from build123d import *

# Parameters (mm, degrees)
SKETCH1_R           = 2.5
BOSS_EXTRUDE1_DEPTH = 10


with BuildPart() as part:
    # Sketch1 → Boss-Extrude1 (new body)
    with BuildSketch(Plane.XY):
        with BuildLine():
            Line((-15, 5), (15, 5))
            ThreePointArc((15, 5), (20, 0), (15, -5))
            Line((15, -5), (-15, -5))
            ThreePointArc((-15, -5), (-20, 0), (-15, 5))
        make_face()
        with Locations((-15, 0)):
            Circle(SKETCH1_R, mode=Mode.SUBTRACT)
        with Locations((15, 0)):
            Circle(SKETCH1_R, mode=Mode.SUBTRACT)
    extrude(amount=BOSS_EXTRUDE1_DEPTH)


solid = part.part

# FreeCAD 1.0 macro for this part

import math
import FreeCAD as App
import Part
import Sketcher
Q = App.Units.Quantity

doc = App.newDocument("Part")
body = doc.addObject("PartDesign::Body", "Body")

# Sketch on XY plane
sketch1 = body.newObject("Sketcher::SketchObject", "Sketch")
sketch1.AttachmentSupport = (doc.getObject("XY_Plane"), [""])
sketch1.MapMode = "FlatFace"
sketch1.addGeometry(Part.LineSegment(App.Vector(15, 5, 0), App.Vector(-15, 5, 0)), False)
sketch1.addGeometry(Part.ArcOfCircle(Part.Circle(App.Vector(-15, 0, 0), App.Vector(0, 0, 1), 5), math.radians(90), math.radians(270)), False)
sketch1.addGeometry(Part.LineSegment(App.Vector(-15, -5, 0), App.Vector(15, -5, 0)), False)
sketch1.addGeometry(Part.ArcOfCircle(Part.Circle(App.Vector(15, 0, 0), App.Vector(0, 0, 1), 5), math.radians(-90), math.radians(90)), False)
sketch1.addGeometry(Part.Circle(App.Vector(15, 0, 0), App.Vector(0, 0, 1), 2.5), False)
sketch1.addGeometry(Part.Circle(App.Vector(-15, 0, 0), App.Vector(0, 0, 1), 2.5), False)
sketch1.addConstraint(Sketcher.Constraint("Tangent", 0, 2, 1, 1))
sketch1.addConstraint(Sketcher.Constraint("Tangent", 1, 2, 2, 1))
sketch1.addConstraint(Sketcher.Constraint("Tangent", 2, 2, 3, 1))
sketch1.addConstraint(Sketcher.Constraint("Tangent", 3, 2, 0, 1))
sketch1.addConstraint(Sketcher.Constraint("Horizontal", 0))
sketch1.addConstraint(Sketcher.Constraint("Horizontal", 2))
sketch1.addConstraint(Sketcher.Constraint("Coincident", 4, 3, 3, 3))
sketch1.addConstraint(Sketcher.Constraint("Coincident", 5, 3, 1, 3))
sketch1.addConstraint(Sketcher.Constraint("Equal", 4, 5))
sketch1.addConstraint(Sketcher.Constraint("Symmetric", 1, 3, 3, 3, -1, 1))
sketch1.addConstraint(Sketcher.Constraint("Diameter", 4, Q("5 mm")))
sketch1.addConstraint(Sketcher.Constraint("Radius", 1, Q("5 mm")))
sketch1.addConstraint(Sketcher.Constraint("DistanceX", 0, 2, 0, 1, Q("30 mm")))
pad1 = body.newObject("PartDesign::Pad", "Pad")
pad1.Profile = sketch1
pad1.Length = 10

doc.recompute()
